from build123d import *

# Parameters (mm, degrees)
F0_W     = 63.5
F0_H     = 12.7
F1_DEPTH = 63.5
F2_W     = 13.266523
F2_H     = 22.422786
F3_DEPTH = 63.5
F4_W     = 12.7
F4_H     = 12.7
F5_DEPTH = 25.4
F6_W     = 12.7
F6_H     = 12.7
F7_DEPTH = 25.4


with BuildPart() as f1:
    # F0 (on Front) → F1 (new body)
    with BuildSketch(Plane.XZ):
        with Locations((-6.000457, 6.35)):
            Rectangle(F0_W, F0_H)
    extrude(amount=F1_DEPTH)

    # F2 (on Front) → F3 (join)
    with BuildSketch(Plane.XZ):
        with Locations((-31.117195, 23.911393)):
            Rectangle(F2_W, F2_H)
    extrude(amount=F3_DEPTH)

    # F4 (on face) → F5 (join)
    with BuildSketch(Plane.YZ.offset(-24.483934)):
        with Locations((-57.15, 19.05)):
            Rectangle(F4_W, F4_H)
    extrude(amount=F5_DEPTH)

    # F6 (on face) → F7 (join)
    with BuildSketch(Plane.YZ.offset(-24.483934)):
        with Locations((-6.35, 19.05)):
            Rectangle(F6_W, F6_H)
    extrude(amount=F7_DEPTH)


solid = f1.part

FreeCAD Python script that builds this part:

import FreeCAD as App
import Part
import Sketcher
Q = App.Units.Quantity

doc = App.newDocument("Part")
params = doc.addObject("Spreadsheet::Sheet", "Params")
for row, (alias, value) in enumerate([
    ("sketch1_width", "2.5 in"),
    ("sketch1_height", "0.5 in"),
    ("pad1_length", "2.5 in"),
    ("pad2_length", "2.5 in"),
    ("sketch3_width", "0.5 in"),
    ("pad3_length", "1 in"),
    ("sketch4_width", "0.5 in"),
    ("pad4_length", "1 in"),
], start=1):
    params.set(f"A{row}", alias)
    params.set(f"B{row}", "=" + value)
    params.setAlias(f"B{row}", alias)

body = doc.addObject("PartDesign::Body", "Body")

sketch1 = doc.addObject("Sketcher::SketchObject", "Sketch")
body.addObject(sketch1)
sketch1.AttachmentSupport = (doc.XZ_Plane, [""])
sketch1.MapMode = "FlatFace"
sketch1.addGeometry(Part.LineSegment(App.Vector(-37.750457, 12.7, 0), App.Vector(-37.750457, 0, 0)), False)
sketch1.addGeometry(Part.LineSegment(App.Vector(-37.750457, 0, 0), App.Vector(25.749543, 0, 0)), False)
sketch1.addGeometry(Part.LineSegment(App.Vector(25.749543, 0, 0), App.Vector(25.749543, 12.7, 0)), False)
sketch1.addGeometry(Part.LineSegment(App.Vector(25.749543, 12.7, 0), App.Vector(-37.750457, 12.7, 0)), False)
sketch1.addConstraint(Sketcher.Constraint("Coincident", 0, 2, 1, 1))
sketch1.addConstraint(Sketcher.Constraint("Coincident", 1, 2, 2, 1))
sketch1.addConstraint(Sketcher.Constraint("Coincident", 2, 2, 3, 1))
sketch1.addConstraint(Sketcher.Constraint("Coincident", 3, 2, 0, 1))
sketch1.addConstraint(Sketcher.Constraint("Vertical", 0))
sketch1.addConstraint(Sketcher.Constraint("Horizontal", 1))
sketch1.addConstraint(Sketcher.Constraint("Vertical", 2))
sketch1.addConstraint(Sketcher.Constraint("Horizontal", 3))
sketch1.addConstraint(Sketcher.Constraint("PointOnObject", 0, 2, -1))
sketch1.addConstraint(Sketcher.Constraint("DistanceX", 1, 1, 1, 2, Q("2.5 in")))
sketch1.addConstraint(Sketcher.Constraint("DistanceY", 0, 2, 0, 1, Q("0.5 in")))
sketch1.addConstraint(Sketcher.Constraint("DistanceX", 0, 2, -1, 1, Q("37.750457 mm")))
sketch1.setExpression("Constraints[9]", "Params.sketch1_width")
sketch1.setExpression("Constraints[10]", "Params.sketch1_height")
pad1 = doc.addObject("PartDesign::Pad", "Pad")
body.addObject(pad1)
pad1.Profile = sketch1
pad1.setExpression("Length", "Params.pad1_length")

sketch2 = doc.addObject("Sketcher::SketchObject", "Sketch001")
body.addObject(sketch2)
sketch2.AttachmentSupport = (doc.XZ_Plane, [""])
sketch2.MapMode = "FlatFace"
sketch2.addGeometry(Part.LineSegment(App.Vector(-37.750456, 35.122786, 0), App.Vector(-37.750456, 12.7, 0)), False)
sketch2.addGeometry(Part.LineSegment(App.Vector(-37.750456, 12.7, 0), App.Vector(-24.483933, 12.7, 0)), False)
sketch2.addGeometry(Part.LineSegment(App.Vector(-24.483933, 12.7, 0), App.Vector(-24.483933, 35.122786, 0)), False)
sketch2.addGeometry(Part.LineSegment(App.Vector(-24.483933, 35.122786, 0), App.Vector(-37.750456, 35.122786, 0)), False)
sketch2.addConstraint(Sketcher.Constraint("Coincident", 0, 2, 1, 1))
sketch2.addConstraint(Sketcher.Constraint("Coincident", 1, 2, 2, 1))
sketch2.addConstraint(Sketcher.Constraint("Coincident", 2, 2, 3, 1))
sketch2.addConstraint(Sketcher.Constraint("Coincident", 3, 2, 0, 1))
sketch2.addConstraint(Sketcher.Constraint("Vertical", 0))
sketch2.addConstraint(Sketcher.Constraint("Horizontal", 1))
sketch2.addConstraint(Sketcher.Constraint("Vertical", 2))
sketch2.addConstraint(Sketcher.Constraint("Horizontal", 3))
sketch2.addConstraint(Sketcher.Constraint("DistanceY", -1, 1, 0, 2, Q("0.5 in")))
sketch2.addConstraint(Sketcher.Constraint("DistanceX", 1, 1, 1, 2, Q("13.266523 mm")))
sketch2.addConstraint(Sketcher.Constraint("DistanceY", 0, 2, 0, 1, Q("22.422786 mm")))
sketch2.addConstraint(Sketcher.Constraint("DistanceX", 0, 2, -1, 1, Q("37.750456 mm")))
pad2 = doc.addObject("PartDesign::Pad", "Pad001")
body.addObject(pad2)
pad2.Profile = sketch2
pad2.setExpression("Length", "Params.pad2_length")

sketch3 = doc.addObject("Sketcher::SketchObject", "Sketch002")
body.addObject(sketch3)
sketch3.AttachmentSupport = (doc.YZ_Plane, [""])
sketch3.MapMode = "FlatFace"
sketch3.AttachmentOffset = App.Placement(App.Vector(0, 0, -24.483934), App.Rotation())
sketch3.addGeometry(Part.LineSegment(App.Vector(-63.5, 25.4, 0), App.Vector(-63.5, 12.7, 0)), False)
sketch3.addGeometry(Part.LineSegment(App.Vector(-63.5, 12.7, 0), App.Vector(-50.8, 12.7, 0)), False)
sketch3.addGeometry(Part.LineSegment(App.Vector(-50.8, 12.7, 0), App.Vector(-50.8, 25.4, 0)), False)
sketch3.addGeometry(Part.LineSegment(App.Vector(-50.8, 25.4, 0), App.Vector(-63.5, 25.4, 0)), False)
sketch3.addConstraint(Sketcher.Constraint("Coincident", 0, 2, 1, 1))
sketch3.addConstraint(Sketcher.Constraint("Coincident", 1, 2, 2, 1))
sketch3.addConstraint(Sketcher.Constraint("Coincident", 2, 2, 3, 1))
sketch3.addConstraint(Sketcher.Constraint("Coincident", 3, 2, 0, 1))
sketch3.addConstraint(Sketcher.Constraint("Vertical", 0))
sketch3.addConstraint(Sketcher.Constraint("Horizontal", 1))
sketch3.addConstraint(Sketcher.Constraint("Vertical", 2))
sketch3.addConstraint(Sketcher.Constraint("Horizontal", 3))
sketch3.addConstraint(Sketcher.Constraint("Equal", 3, 0))
sketch3.addConstraint(Sketcher.Constraint("DistanceX", 1, 1, 1, 2, Q("0.5 in")))
sketch3.addConstraint(Sketcher.Constraint("DistanceX", 1, 2, -1, 1, Q("2 in")))
sketch3.addConstraint(Sketcher.Constraint("DistanceY", -1, 1, 2, 2, Q("1 in")))
sketch3.setExpression("Constraints[9]", "Params.sketch3_width")
pad3 = doc.addObject("PartDesign::Pad", "Pad002")
body.addObject(pad3)
pad3.Profile = sketch3
pad3.setExpression("Length", "Params.pad3_length")

sketch4 = doc.addObject("Sketcher::SketchObject", "Sketch003")
body.addObject(sketch4)
sketch4.AttachmentSupport = (doc.YZ_Plane, [""])
sketch4.MapMode = "FlatFace"
sketch4.AttachmentOffset = App.Placement(App.Vector(0, 0, -24.483934), App.Rotation())
sketch4.addGeometry(Part.LineSegment(App.Vector(-12.7, 25.4, 0), App.Vector(-12.7, 12.7, 0)), False)
sketch4.addGeometry(Part.LineSegment(App.Vector(-12.7, 12.7, 0), App.Vector(0, 12.7, 0)), False)
sketch4.addGeometry(Part.LineSegment(App.Vector(0, 12.7, 0), App.Vector(0, 25.4, 0)), False)
sketch4.addGeometry(Part.LineSegment(App.Vector(0, 25.4, 0), App.Vector(-12.7, 25.4, 0)), False)
sketch4.addConstraint(Sketcher.Constraint("Coincident", 0, 2, 1, 1))
sketch4.addConstraint(Sketcher.Constraint("Coincident", 1, 2, 2, 1))
sketch4.addConstraint(Sketcher.Constraint("Coincident", 2, 2, 3, 1))
sketch4.addConstraint(Sketcher.Constraint("Coincident", 3, 2, 0, 1))
sketch4.addConstraint(Sketcher.Constraint("Vertical", 0))
sketch4.addConstraint(Sketcher.Constraint("Horizontal", 1))
sketch4.addConstraint(Sketcher.Constraint("Vertical", 2))
sketch4.addConstraint(Sketcher.Constraint("Horizontal", 3))
sketch4.addConstraint(Sketcher.Constraint("PointOnObject", 1, 2, -2))
sketch4.addConstraint(Sketcher.Constraint("Equal", 3, 0))
sketch4.addConstraint(Sketcher.Constraint("DistanceX", 1, 1, 1, 2, Q("0.5 in")))
sketch4.addConstraint(Sketcher.Constraint("DistanceY", -1, 1, 2, 2, Q("1 in")))
sketch4.setExpression("Constraints[10]", "Params.sketch4_width")
pad4 = doc.addObject("PartDesign::Pad", "Pad003")
body.addObject(pad4)
pad4.Profile = sketch4
pad4.setExpression("Length", "Params.pad4_length")

doc.recompute()
